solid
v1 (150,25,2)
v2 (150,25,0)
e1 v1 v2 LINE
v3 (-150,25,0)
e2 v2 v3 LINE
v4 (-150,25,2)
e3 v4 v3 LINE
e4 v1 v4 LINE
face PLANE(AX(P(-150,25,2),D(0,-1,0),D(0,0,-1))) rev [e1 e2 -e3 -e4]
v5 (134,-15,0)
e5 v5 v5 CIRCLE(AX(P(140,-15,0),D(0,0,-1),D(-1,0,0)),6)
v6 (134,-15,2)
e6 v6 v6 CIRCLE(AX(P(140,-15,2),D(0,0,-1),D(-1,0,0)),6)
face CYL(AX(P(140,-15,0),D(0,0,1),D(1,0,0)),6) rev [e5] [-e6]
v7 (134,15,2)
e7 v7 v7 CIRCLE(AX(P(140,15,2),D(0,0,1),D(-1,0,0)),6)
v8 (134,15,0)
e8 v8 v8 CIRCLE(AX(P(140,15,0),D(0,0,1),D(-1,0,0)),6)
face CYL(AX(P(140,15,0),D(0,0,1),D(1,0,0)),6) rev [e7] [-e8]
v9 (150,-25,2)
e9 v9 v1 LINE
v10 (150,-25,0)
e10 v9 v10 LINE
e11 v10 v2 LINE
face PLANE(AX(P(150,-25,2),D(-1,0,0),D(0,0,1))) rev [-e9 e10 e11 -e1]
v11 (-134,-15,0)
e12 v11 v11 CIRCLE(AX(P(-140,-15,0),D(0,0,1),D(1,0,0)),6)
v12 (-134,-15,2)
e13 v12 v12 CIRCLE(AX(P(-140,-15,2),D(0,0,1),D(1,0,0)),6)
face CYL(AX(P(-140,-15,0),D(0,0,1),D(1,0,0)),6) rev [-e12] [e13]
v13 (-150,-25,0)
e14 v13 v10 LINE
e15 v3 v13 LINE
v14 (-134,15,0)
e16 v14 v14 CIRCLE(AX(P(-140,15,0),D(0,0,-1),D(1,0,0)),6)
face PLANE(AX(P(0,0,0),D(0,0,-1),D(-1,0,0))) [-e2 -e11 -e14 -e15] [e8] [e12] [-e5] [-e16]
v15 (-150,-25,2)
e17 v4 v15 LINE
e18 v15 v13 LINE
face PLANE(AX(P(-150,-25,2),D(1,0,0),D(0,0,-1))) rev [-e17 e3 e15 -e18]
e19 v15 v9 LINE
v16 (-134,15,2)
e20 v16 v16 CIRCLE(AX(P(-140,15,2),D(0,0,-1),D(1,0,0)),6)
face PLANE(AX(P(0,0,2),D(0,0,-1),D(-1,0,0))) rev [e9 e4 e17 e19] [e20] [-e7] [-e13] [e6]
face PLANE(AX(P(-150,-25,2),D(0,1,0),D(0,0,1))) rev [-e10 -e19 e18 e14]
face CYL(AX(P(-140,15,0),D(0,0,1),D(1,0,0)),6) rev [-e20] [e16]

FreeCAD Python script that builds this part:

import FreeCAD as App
import Part
import Sketcher
from FreeCAD import Vector


def add_polygon(sketch, points):
    """Adds a closed chain of lines whose ends are joined by coincident constraints."""
    first, n = sketch.GeometryCount, len(points)
    for a, b in zip(points, points[1:] + points[:1]):
        sketch.addGeometry(Part.LineSegment(App.Vector(*a, 0), App.Vector(*b, 0)), False)
    for i in range(n):
        sketch.addConstraint(Sketcher.Constraint("Coincident", first + i, 2, first + (i + 1) % n, 1))

doc = App.newDocument("Part")
body = doc.addObject("PartDesign::Body", "Body")

sketch1 = doc.addObject("Sketcher::SketchObject", "Sketch")
body.addObject(sketch1)
sketch1.AttachmentSupport = (doc.XY_Plane, [""])
sketch1.MapMode = "FlatFace"
add_polygon(sketch1, [(-150, 25), (-150, -25), (150, -25), (150, 25)])
sketch1.addConstraint([
    Sketcher.Constraint("Vertical", 0),
    Sketcher.Constraint("Horizontal", 1),
    Sketcher.Constraint("Vertical", 2),
    Sketcher.Constraint("Horizontal", 3),
    Sketcher.Constraint("Symmetric", 0, 2, 2, 2, -1, 1),
    Sketcher.Constraint("DistanceX", 1, 1, 1, 2, 300.0),
    Sketcher.Constraint("DistanceY", 0, 2, 0, 1, 50.0),
])
pad1 = doc.addObject("PartDesign::Pad", "Pad")
body.addObject(pad1)
pad1.Profile = sketch1
pad1.Length = 2

sketch2 = doc.addObject("Sketcher::SketchObject", "Sketch001")
body.addObject(sketch2)
sketch2.AttachmentSupport = (doc.XY_Plane, [""])
sketch2.MapMode = "FlatFace"
sketch2.AttachmentOffset = App.Placement(Vector(0, 0, 2), App.Rotation())
sketch2.addGeometry(Part.Circle(Vector(-140, -15, 0), Vector(0, 0, 1), 6), False)
sketch2.addConstraint([
    Sketcher.Constraint("Diameter", 0, 12.0),
    Sketcher.Constraint("DistanceX", 0, 3, -1, 1, 140.0),
    Sketcher.Constraint("DistanceY", 0, 3, -1, 1, 15.0),
])
pocket1 = doc.addObject("PartDesign::Pocket", "Pocket")
body.addObject(pocket1)
pocket1.Profile = sketch2
pocket1.Type = "ThroughAll"
doc.recompute()

mirrored = doc.addObject("PartDesign::Mirrored", "Mirrored")
body.addObject(mirrored)
mirrored.Originals = [pocket1]
mirrored.MirrorPlane = (doc.XZ_Plane, [""])
body.Tip = mirrored
doc.recompute()

mirrored2 = doc.addObject("PartDesign::Mirrored", "Mirrored001")
body.addObject(mirrored2)
mirrored2.Originals = [pocket1]
mirrored2.MirrorPlane = (doc.YZ_Plane, [""])
body.Tip = mirrored2

sketch3 = doc.addObject("Sketcher::SketchObject", "Sketch002")
body.addObject(sketch3)
sketch3.AttachmentSupport = (doc.XY_Plane, [""])
sketch3.MapMode = "FlatFace"
sketch3.AttachmentOffset = App.Placement(Vector(0, 0, 2), App.Rotation())
sketch3.addGeometry(Part.Circle(Vector(140, 15, 0), Vector(0, 0, 1), 6), False)
sketch3.addConstraint([
    Sketcher.Constraint("Diameter", 0, 12.0),
    Sketcher.Constraint("DistanceX", -1, 1, 0, 3, 140.0),
    Sketcher.Constraint("DistanceY", -1, 1, 0, 3, 15.0),
])
pocket2 = doc.addObject("PartDesign::Pocket", "Pocket001")
body.addObject(pocket2)
pocket2.Profile = sketch3
pocket2.Type = "ThroughAll"

doc.recompute()
